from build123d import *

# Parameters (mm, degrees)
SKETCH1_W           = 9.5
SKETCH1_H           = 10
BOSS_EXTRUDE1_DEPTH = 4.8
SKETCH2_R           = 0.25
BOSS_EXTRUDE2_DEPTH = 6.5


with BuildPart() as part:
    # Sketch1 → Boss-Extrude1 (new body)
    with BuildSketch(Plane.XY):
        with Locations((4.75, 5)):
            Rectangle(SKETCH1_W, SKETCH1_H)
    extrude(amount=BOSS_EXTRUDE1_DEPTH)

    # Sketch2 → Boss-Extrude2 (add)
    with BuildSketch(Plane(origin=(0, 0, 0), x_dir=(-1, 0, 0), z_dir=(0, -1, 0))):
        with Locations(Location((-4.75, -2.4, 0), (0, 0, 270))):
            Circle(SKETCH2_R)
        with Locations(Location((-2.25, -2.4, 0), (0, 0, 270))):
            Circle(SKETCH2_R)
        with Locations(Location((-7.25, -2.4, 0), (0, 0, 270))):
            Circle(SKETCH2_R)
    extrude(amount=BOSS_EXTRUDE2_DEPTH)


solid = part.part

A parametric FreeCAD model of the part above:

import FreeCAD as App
import Part
import Sketcher

V = App.Vector
Q = App.Units.Quantity

doc = App.newDocument("Part")
body = doc.addObject("PartDesign::Body", "Body")

sketch1 = body.newObject("Sketcher::SketchObject", "Sketch")
sketch1.AttachmentSupport = (doc.getObject("XY_Plane"), [""])
sketch1.MapMode = "FlatFace"
sketch1.addGeometry([
    Part.LineSegment(V(0, 10, 0), V(0, 0, 0)),
    Part.LineSegment(V(0, 0, 0), V(10, 0, 0)),
    Part.LineSegment(V(10, 0, 0), V(10, 10, 0)),
    Part.LineSegment(V(10, 10, 0), V(0, 10, 0)),
], False)
sketch1.addConstraint([
    Sketcher.Constraint("Coincident", 0, 2, 1, 1),
    Sketcher.Constraint("Coincident", 1, 2, 2, 1),
    Sketcher.Constraint("Coincident", 2, 2, 3, 1),
    Sketcher.Constraint("Coincident", 3, 2, 0, 1),
    Sketcher.Constraint("Vertical", 0),
    Sketcher.Constraint("Horizontal", 1),
    Sketcher.Constraint("Vertical", 2),
    Sketcher.Constraint("Horizontal", 3),
    Sketcher.Constraint("Coincident", 0, 2, -1, 1),
    Sketcher.Constraint("DistanceY", 0, 2, 0, 1, Q("10 mm")),
    Sketcher.Constraint("DistanceX", 1, 1, 1, 2, Q("9.5 mm")),
])
pad1 = body.newObject("PartDesign::Pad", "Pad")
pad1.Profile = sketch1
pad1.Length = 4.8

sketch2 = body.newObject("Sketcher::SketchObject", "Sketch001")
sketch2.AttachmentSupport = (doc.getObject("XZ_Plane"), [""])
sketch2.MapMode = "FlatFace"
sketch2.addGeometry([
    Part.Circle(V(4.75, 2.4, 0), V(0, 0, 1), 0.25),
    Part.Circle(V(2.25, 2.4, 0), V(0, 0, 1), 0.25),
    Part.Circle(V(7.25, 2.4, 0), V(0, 0, 1), 0.25),
], False)
sketch2.addConstraint([
    Sketcher.Constraint("Equal", 0, 1),
    Sketcher.Constraint("Equal", 1, 2),
    Sketcher.Constraint("Horizontal", 0, 3, 1, 3),
    Sketcher.Constraint("Horizontal", 1, 3, 2, 3),
    Sketcher.Constraint("Diameter", 0, Q("0.5 mm")),
    Sketcher.Constraint("DistanceX", 1, 3, 2, 3, Q("5 mm")),
    Sketcher.Constraint("DistanceY", -1, 1, 0, 3, Q("2.4 mm")),
    Sketcher.Constraint("DistanceX", 1, 3, 0, 3, Q("2.5 mm")),
    Sketcher.Constraint("DistanceX", -1, 1, 0, 3, Q("4.75 mm")),
])
pad2 = body.newObject("PartDesign::Pad", "Pad001")
pad2.Profile = sketch2
pad2.Length = 6.5

doc.recompute()
